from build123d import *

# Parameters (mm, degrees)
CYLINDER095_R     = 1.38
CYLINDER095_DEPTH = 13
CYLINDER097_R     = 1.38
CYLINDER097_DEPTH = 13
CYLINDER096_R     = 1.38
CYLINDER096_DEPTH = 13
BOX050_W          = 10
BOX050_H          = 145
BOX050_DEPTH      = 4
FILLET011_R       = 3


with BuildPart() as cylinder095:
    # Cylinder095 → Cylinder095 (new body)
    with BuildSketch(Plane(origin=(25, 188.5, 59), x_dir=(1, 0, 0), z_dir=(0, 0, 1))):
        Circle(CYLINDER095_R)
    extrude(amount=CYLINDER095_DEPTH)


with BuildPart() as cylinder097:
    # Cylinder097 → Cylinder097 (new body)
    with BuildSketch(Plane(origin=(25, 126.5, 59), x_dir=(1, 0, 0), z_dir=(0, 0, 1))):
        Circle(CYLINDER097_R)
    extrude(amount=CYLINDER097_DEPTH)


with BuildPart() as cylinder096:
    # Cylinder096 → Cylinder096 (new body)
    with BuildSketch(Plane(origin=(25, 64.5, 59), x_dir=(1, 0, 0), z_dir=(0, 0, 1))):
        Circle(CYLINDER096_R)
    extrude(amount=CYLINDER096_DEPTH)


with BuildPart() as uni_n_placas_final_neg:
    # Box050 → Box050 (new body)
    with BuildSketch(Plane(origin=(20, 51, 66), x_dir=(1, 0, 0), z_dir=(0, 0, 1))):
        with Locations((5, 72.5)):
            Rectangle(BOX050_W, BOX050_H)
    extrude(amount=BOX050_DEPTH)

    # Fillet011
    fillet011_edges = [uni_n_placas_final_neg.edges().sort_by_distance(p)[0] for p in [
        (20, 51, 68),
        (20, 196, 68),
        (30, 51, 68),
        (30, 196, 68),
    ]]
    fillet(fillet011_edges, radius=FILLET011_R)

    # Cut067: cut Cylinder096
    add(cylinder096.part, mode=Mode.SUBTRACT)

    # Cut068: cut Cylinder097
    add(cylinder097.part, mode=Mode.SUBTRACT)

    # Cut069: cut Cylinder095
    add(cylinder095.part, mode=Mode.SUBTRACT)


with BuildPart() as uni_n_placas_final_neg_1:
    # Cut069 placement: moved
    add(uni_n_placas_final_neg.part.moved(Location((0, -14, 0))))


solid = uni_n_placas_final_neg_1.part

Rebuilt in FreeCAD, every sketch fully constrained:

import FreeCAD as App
import Part
import Sketcher
from FreeCAD import Vector
Q = App.Units.Quantity


def edges_at(feature, points):
    """Names of the edges that pass closest to the given points."""
    edges = feature.Shape.Edges
    near = lambda p: min(range(len(edges)), key=lambda i: edges[i].distToShape(Part.Vertex(*p))[0])
    return sorted({f"Edge{near(p) + 1}" for p in points})

doc = App.newDocument("Part")
params = doc.addObject("Spreadsheet::Sheet", "Params")
for row, (alias, value) in enumerate([
    ("sketch1_diameter", "2.76 mm"),
    ("pad1_length", "13 mm"),
    ("sketch2_diameter", "2.76 mm"),
    ("pad2_length", "13 mm"),
    ("sketch3_diameter", "2.76 mm"),
    ("pad3_length", "13 mm"),
    ("sketch4_width", "10 mm"),
    ("sketch4_height", "145 mm"),
    ("pad4_length", "4 mm"),
    ("fillet_radius", "3 mm"),
], start=1):
    params.set(f"A{row}", alias)
    params.set(f"B{row}", "=" + value)
    params.setAlias(f"B{row}", alias)

body = doc.addObject("PartDesign::Body", "Body")

sketch1 = body.newObject("Sketcher::SketchObject", "Sketch")
sketch1.AttachmentSupport = (doc.getObject("XY_Plane"), [""])
sketch1.MapMode = "FlatFace"
sketch1.AttachmentOffset = App.Placement(Vector(0, 0, 59), App.Rotation())
sketch1.addGeometry(Part.Circle(Vector(25, 188.5, 0), Vector(0, 0, 1), 1.4), False)
sketch1.addConstraint(Sketcher.Constraint("Diameter", 0, Q("2.76 mm")))
sketch1.addConstraint(Sketcher.Constraint("DistanceX", -1, 1, 0, 3, Q("25 mm")))
sketch1.addConstraint(Sketcher.Constraint("DistanceY", -1, 1, 0, 3, Q("188.5 mm")))
sketch1.setExpression("Constraints[0]", "Params.sketch1_diameter")
pad1 = body.newObject("PartDesign::Pad", "Pad")
pad1.Profile = sketch1
pad1.setExpression("Length", "Params.pad1_length")
body2 = doc.addObject("PartDesign::Body", "Body001")

sketch2 = body2.newObject("Sketcher::SketchObject", "Sketch001")
sketch2.AttachmentSupport = (doc.getObject("XY_Plane001"), [""])
sketch2.MapMode = "FlatFace"
sketch2.AttachmentOffset = App.Placement(Vector(0, 0, 59), App.Rotation())
sketch2.addGeometry(Part.Circle(Vector(25, 126.5, 0), Vector(0, 0, 1), 1.4), False)
sketch2.addConstraint(Sketcher.Constraint("Diameter", 0, Q("2.76 mm")))
sketch2.addConstraint(Sketcher.Constraint("DistanceX", -1, 1, 0, 3, Q("25 mm")))
sketch2.addConstraint(Sketcher.Constraint("DistanceY", -1, 1, 0, 3, Q("126.5 mm")))
sketch2.setExpression("Constraints[0]", "Params.sketch2_diameter")
pad2 = body2.newObject("PartDesign::Pad", "Pad001")
pad2.Profile = sketch2
pad2.setExpression("Length", "Params.pad2_length")
body3 = doc.addObject("PartDesign::Body", "Body002")

sketch3 = body3.newObject("Sketcher::SketchObject", "Sketch002")
sketch3.AttachmentSupport = (doc.getObject("XY_Plane002"), [""])
sketch3.MapMode = "FlatFace"
sketch3.AttachmentOffset = App.Placement(Vector(0, 0, 59), App.Rotation())
sketch3.addGeometry(Part.Circle(Vector(25, 64.5, 0), Vector(0, 0, 1), 1.4), False)
sketch3.addConstraint(Sketcher.Constraint("Diameter", 0, Q("2.76 mm")))
sketch3.addConstraint(Sketcher.Constraint("DistanceX", -1, 1, 0, 3, Q("25 mm")))
sketch3.addConstraint(Sketcher.Constraint("DistanceY", -1, 1, 0, 3, Q("64.5 mm")))
sketch3.setExpression("Constraints[0]", "Params.sketch3_diameter")
pad3 = body3.newObject("PartDesign::Pad", "Pad002")
pad3.Profile = sketch3
pad3.setExpression("Length", "Params.pad3_length")
body4 = doc.addObject("PartDesign::Body", "Body003")

sketch4 = body4.newObject("Sketcher::SketchObject", "Sketch003")
sketch4.AttachmentSupport = (doc.getObject("XY_Plane003"), [""])
sketch4.MapMode = "FlatFace"
sketch4.AttachmentOffset = App.Placement(Vector(0, 0, 66), App.Rotation())
sketch4.addGeometry(Part.LineSegment(Vector(20, 196, 0), Vector(20, 51, 0)), False)
sketch4.addGeometry(Part.LineSegment(Vector(20, 51, 0), Vector(30, 51, 0)), False)
sketch4.addGeometry(Part.LineSegment(Vector(30, 51, 0), Vector(30, 196, 0)), False)
sketch4.addGeometry(Part.LineSegment(Vector(30, 196, 0), Vector(20, 196, 0)), False)
sketch4.addConstraint(Sketcher.Constraint("Coincident", 0, 2, 1, 1))
sketch4.addConstraint(Sketcher.Constraint("Coincident", 1, 2, 2, 1))
sketch4.addConstraint(Sketcher.Constraint("Coincident", 2, 2, 3, 1))
sketch4.addConstraint(Sketcher.Constraint("Coincident", 3, 2, 0, 1))
sketch4.addConstraint(Sketcher.Constraint("Vertical", 0))
sketch4.addConstraint(Sketcher.Constraint("Horizontal", 1))
sketch4.addConstraint(Sketcher.Constraint("Vertical", 2))
sketch4.addConstraint(Sketcher.Constraint("Horizontal", 3))
sketch4.addConstraint(Sketcher.Constraint("DistanceX", 1, 1, 1, 2, Q("10 mm")))
sketch4.addConstraint(Sketcher.Constraint("DistanceY", 0, 2, 0, 1, Q("145 mm")))
sketch4.addConstraint(Sketcher.Constraint("DistanceX", -1, 1, 0, 2, Q("20 mm")))
sketch4.addConstraint(Sketcher.Constraint("DistanceY", -1, 1, 0, 2, Q("51 mm")))
sketch4.setExpression("Constraints[8]", "Params.sketch4_width")
sketch4.setExpression("Constraints[9]", "Params.sketch4_height")
pad4 = body4.newObject("PartDesign::Pad", "Pad003")
pad4.Profile = sketch4
pad4.setExpression("Length", "Params.pad4_length")
doc.recompute()

fillet = body4.newObject("PartDesign::Fillet", "Fillet")
fillet.Base = (pad4, edges_at(pad4, [
    (20, 51, 68),
    (20, 196, 68),
    (30, 51, 68),
    (30, 196, 68),
]))
fillet.setExpression("Radius", "Params.fillet_radius")
doc.recompute()

boolean = body4.newObject("PartDesign::Boolean", "Boolean")
boolean.Type = "Cut"
boolean.addObjects([body3])
doc.recompute()

boolean2 = body4.newObject("PartDesign::Boolean", "Boolean001")
boolean2.Type = "Cut"
boolean2.addObjects([body2])
doc.recompute()

boolean3 = body4.newObject("PartDesign::Boolean", "Boolean002")
boolean3.Type = "Cut"
boolean3.addObjects([body])
body5 = doc.addObject("PartDesign::Body", "Body004")
doc.recompute()

body4.Placement = App.Placement(Vector(0, -14, 0), App.Rotation(Vector(0, 0, 1), 0))
boolean4 = body5.newObject("PartDesign::Boolean", "Boolean003")
boolean4.Type = "Fuse"
boolean4.addObjects([body4])

doc.recompute()
